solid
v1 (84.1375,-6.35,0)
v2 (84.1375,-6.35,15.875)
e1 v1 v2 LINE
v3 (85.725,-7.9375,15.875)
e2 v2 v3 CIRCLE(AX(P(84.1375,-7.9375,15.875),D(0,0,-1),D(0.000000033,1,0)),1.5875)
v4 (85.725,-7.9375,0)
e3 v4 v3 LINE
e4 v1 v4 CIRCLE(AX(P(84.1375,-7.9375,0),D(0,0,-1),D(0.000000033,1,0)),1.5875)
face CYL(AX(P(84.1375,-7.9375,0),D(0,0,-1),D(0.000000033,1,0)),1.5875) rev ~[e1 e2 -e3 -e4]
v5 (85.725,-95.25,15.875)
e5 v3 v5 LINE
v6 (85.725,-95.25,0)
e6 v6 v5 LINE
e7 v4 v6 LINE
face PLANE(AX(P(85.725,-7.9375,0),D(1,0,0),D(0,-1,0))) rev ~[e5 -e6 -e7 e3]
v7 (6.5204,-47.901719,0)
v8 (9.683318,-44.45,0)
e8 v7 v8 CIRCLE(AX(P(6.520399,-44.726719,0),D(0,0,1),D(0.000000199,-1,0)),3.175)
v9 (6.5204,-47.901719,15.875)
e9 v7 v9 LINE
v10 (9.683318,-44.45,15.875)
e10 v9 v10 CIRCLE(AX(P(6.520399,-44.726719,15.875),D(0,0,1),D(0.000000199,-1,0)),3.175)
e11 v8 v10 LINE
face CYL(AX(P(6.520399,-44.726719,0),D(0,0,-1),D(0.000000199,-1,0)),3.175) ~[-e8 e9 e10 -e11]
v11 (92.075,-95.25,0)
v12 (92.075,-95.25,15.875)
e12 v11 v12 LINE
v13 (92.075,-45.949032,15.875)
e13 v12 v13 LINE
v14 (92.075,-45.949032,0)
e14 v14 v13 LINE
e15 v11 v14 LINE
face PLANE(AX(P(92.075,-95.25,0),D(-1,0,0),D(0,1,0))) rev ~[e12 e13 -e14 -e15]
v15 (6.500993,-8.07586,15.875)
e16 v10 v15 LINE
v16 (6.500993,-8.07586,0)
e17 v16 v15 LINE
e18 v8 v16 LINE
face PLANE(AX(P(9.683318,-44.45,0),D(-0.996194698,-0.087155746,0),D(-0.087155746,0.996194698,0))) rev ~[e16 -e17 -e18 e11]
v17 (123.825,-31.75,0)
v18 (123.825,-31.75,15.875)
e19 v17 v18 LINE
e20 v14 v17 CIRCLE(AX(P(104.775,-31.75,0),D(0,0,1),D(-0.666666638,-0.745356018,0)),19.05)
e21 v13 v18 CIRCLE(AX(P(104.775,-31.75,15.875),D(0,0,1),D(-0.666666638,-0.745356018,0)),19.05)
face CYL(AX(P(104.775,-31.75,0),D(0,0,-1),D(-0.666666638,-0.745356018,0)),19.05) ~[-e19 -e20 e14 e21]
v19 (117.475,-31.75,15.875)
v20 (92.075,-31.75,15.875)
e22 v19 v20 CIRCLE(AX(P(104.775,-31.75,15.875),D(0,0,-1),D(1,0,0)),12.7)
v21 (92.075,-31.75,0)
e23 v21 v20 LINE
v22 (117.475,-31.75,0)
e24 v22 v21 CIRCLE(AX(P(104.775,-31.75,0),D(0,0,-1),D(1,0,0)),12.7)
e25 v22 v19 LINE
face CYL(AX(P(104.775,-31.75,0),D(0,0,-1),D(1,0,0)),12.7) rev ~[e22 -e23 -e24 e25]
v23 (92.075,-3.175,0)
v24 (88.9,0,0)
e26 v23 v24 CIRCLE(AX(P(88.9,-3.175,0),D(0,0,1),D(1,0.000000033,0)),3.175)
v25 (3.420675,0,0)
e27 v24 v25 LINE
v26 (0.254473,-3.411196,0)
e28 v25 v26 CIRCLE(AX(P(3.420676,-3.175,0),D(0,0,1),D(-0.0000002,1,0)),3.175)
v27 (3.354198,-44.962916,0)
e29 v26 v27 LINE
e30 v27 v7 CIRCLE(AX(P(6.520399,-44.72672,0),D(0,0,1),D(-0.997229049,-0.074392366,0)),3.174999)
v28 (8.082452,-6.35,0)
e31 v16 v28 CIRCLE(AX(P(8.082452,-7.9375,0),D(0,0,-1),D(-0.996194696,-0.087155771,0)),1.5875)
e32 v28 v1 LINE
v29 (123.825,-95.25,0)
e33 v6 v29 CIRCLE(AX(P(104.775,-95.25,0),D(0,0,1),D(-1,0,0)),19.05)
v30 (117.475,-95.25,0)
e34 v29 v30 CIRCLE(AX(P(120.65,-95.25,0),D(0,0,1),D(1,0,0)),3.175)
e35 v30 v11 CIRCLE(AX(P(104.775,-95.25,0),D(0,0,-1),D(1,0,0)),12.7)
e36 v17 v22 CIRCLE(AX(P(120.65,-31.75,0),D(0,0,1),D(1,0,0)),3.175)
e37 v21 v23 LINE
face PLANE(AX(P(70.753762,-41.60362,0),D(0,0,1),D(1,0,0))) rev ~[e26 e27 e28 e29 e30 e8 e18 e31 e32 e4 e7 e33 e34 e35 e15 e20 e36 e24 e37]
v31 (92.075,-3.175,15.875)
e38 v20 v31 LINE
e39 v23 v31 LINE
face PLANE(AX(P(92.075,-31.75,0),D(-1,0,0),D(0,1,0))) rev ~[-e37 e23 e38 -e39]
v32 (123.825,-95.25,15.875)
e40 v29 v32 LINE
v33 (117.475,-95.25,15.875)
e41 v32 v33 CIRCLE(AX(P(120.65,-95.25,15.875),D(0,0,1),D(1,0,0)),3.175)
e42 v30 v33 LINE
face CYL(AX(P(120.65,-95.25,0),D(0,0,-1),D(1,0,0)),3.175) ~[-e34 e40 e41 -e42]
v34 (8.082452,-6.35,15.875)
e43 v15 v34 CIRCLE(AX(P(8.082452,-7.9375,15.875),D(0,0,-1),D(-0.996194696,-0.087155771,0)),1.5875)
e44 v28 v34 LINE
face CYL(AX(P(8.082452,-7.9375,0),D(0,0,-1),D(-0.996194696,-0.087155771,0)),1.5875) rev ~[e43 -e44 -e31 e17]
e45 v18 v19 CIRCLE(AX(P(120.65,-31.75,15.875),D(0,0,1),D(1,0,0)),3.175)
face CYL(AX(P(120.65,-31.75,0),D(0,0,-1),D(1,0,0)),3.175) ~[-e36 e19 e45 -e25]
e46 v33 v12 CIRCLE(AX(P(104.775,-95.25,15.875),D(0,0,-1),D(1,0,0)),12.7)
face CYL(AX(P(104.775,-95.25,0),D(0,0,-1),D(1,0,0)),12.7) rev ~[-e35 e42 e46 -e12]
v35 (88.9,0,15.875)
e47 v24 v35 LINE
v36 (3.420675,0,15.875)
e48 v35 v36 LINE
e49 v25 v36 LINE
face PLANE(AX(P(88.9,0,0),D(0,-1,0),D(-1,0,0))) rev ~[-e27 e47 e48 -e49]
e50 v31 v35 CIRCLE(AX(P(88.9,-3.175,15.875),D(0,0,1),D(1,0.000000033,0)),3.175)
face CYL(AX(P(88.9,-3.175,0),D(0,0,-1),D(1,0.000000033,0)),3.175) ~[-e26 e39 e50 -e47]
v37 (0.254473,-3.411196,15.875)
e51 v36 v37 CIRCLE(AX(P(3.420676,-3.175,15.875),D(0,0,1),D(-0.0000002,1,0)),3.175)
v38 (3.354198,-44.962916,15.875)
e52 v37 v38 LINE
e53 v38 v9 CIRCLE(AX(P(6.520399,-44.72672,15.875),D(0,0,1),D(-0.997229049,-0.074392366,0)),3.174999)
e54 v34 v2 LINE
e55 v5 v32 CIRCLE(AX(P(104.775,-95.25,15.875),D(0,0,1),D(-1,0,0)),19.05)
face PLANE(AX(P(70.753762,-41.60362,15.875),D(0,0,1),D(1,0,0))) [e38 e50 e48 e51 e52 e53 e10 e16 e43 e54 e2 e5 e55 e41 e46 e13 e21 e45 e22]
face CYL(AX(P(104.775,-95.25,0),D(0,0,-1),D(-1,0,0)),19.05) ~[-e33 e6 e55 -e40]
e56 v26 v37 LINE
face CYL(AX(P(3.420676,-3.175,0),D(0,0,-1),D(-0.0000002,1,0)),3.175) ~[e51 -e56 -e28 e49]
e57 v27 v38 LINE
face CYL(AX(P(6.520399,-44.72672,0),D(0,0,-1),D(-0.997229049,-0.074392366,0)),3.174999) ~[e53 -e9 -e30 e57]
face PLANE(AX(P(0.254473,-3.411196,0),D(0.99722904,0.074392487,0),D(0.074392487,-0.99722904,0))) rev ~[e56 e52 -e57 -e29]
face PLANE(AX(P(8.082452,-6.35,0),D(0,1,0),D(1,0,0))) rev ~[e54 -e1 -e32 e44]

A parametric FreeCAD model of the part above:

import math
import FreeCAD as App
import Part
import Sketcher
from FreeCAD import Vector
Q = App.Units.Quantity

doc = App.newDocument("Part")
body = doc.addObject("PartDesign::Body", "Body")

sketch1 = body.newObject("Sketcher::SketchObject", "Sketch")
sketch1.AttachmentSupport = (doc.getObject("XY_Plane"), [""])
sketch1.MapMode = "FlatFace"
sketch1.addGeometry(Part.LineSegment(Vector(88.9, 0, 0), Vector(3.420675, 0, 0)), False)
sketch1.addGeometry(Part.ArcOfCircle(Part.Circle(Vector(3.420676, -3.175, 0), Vector(0, 0, 1), 3.175), math.radians(90.000011), math.radians(184.266307)), False)
sketch1.addGeometry(Part.LineSegment(Vector(0.254473, -3.411196, 0), Vector(3.354198, -44.962916, 0)), False)
sketch1.addGeometry(Part.ArcOfCircle(Part.Circle(Vector(6.520399, -44.72672, 0), Vector(0, 0, 1), 3.174999), math.radians(-175.73369), math.radians(-89.99998)), False)
sketch1.addGeometry(Part.ArcOfCircle(Part.Circle(Vector(6.520399, -44.726719, 0), Vector(0, 0, 1), 3.175), math.radians(-89.999989), math.radians(4.999984)), False)
sketch1.addGeometry(Part.LineSegment(Vector(9.683318, -44.45, 0), Vector(6.500993, -8.07586, 0)), False)
sketch1.addGeometry(Part.ArcOfCircle(Part.Circle(Vector(8.082452, -7.9375, 0), Vector(0, 0, 1), 1.5875), math.radians(90.00001), math.radians(185.000002)), False)
sketch1.addGeometry(Part.LineSegment(Vector(8.082452, -6.35, 0), Vector(84.1375, -6.35, 0)), False)
sketch1.addGeometry(Part.ArcOfCircle(Part.Circle(Vector(84.1375, -7.9375, 0), Vector(0, 0, 1), 1.5875), math.radians(0.000002), math.radians(89.999998)), False)
sketch1.addGeometry(Part.LineSegment(Vector(85.725, -7.9375, 0), Vector(85.725, -95.25, 0)), False)
sketch1.addGeometry(Part.ArcOfCircle(Part.Circle(Vector(104.775, -95.25, 0), Vector(0, 0, 1), 19.05), math.radians(180), math.radians(360)), False)
sketch1.addGeometry(Part.ArcOfCircle(Part.Circle(Vector(120.65, -95.25, 0), Vector(0, 0, 1), 3.175), math.radians(0), math.radians(180)), False)
sketch1.addGeometry(Part.ArcOfCircle(Part.Circle(Vector(104.775, -95.25, 0), Vector(0, 0, 1), 12.7), math.radians(180), math.radians(360)), False)
sketch1.addGeometry(Part.LineSegment(Vector(92.075, -95.25, 0), Vector(92.075, -45.949032, 0)), False)
sketch1.addGeometry(Part.ArcOfCircle(Part.Circle(Vector(104.775, -31.75, 0), Vector(0, 0, 1), 19.05), math.radians(-131.810313), math.radians(-0.000001)), False)
sketch1.addGeometry(Part.ArcOfCircle(Part.Circle(Vector(120.65, -31.75, 0), Vector(0, 0, 1), 3.175), math.radians(0), math.radians(180)), False)
sketch1.addGeometry(Part.ArcOfCircle(Part.Circle(Vector(104.775, -31.75, 0), Vector(0, 0, 1), 12.7), math.radians(180), math.radians(360)), False)
sketch1.addGeometry(Part.LineSegment(Vector(92.075, -31.75, 0), Vector(92.075, -3.175, 0)), False)
sketch1.addGeometry(Part.ArcOfCircle(Part.Circle(Vector(88.9, -3.175, 0), Vector(0, 0, 1), 3.175), math.radians(0.000002), math.radians(89.999998)), False)
sketch1.addConstraint(Sketcher.Constraint("Coincident", 0, 2, 1, 1))
sketch1.addConstraint(Sketcher.Constraint("Coincident", 1, 2, 2, 1))
sketch1.addConstraint(Sketcher.Constraint("Coincident", 2, 2, 3, 1))
sketch1.addConstraint(Sketcher.Constraint("Coincident", 3, 2, 4, 1))
sketch1.addConstraint(Sketcher.Constraint("Coincident", 4, 2, 5, 1))
sketch1.addConstraint(Sketcher.Constraint("Coincident", 5, 2, 6, 2))
sketch1.addConstraint(Sketcher.Constraint("Coincident", 6, 1, 7, 1))
sketch1.addConstraint(Sketcher.Constraint("Coincident", 7, 2, 8, 2))
sketch1.addConstraint(Sketcher.Constraint("Coincident", 8, 1, 9, 1))
sketch1.addConstraint(Sketcher.Constraint("Coincident", 9, 2, 10, 1))
sketch1.addConstraint(Sketcher.Constraint("Coincident", 10, 2, 11, 1))
sketch1.addConstraint(Sketcher.Constraint("Coincident", 11, 2, 12, 2))
sketch1.addConstraint(Sketcher.Constraint("Coincident", 12, 1, 13, 1))
sketch1.addConstraint(Sketcher.Constraint("Coincident", 13, 2, 14, 1))
sketch1.addConstraint(Sketcher.Constraint("Coincident", 14, 2, 15, 1))
sketch1.addConstraint(Sketcher.Constraint("Coincident", 15, 2, 16, 2))
sketch1.addConstraint(Sketcher.Constraint("Coincident", 16, 1, 17, 1))
sketch1.addConstraint(Sketcher.Constraint("Coincident", 17, 2, 18, 1))
sketch1.addConstraint(Sketcher.Constraint("Coincident", 18, 2, 0, 1))
sketch1.addConstraint(Sketcher.Constraint("Horizontal", 0))
sketch1.addConstraint(Sketcher.Constraint("Horizontal", 7))
sketch1.addConstraint(Sketcher.Constraint("Vertical", 9))
sketch1.addConstraint(Sketcher.Constraint("Vertical", 13))
sketch1.addConstraint(Sketcher.Constraint("Vertical", 17))
sketch1.addConstraint(Sketcher.Constraint("Coincident", 4, 3, 3, 3))
sketch1.addConstraint(Sketcher.Constraint("Coincident", 12, 3, 10, 3))
sketch1.addConstraint(Sketcher.Constraint("Coincident", 16, 3, 14, 3))
sketch1.addConstraint(Sketcher.Constraint("PointOnObject", 0, 2, -1))
sketch1.addConstraint(Sketcher.Constraint("Radius", 12, Q("0.5 in")))
sketch1.addConstraint(Sketcher.Constraint("Radius", 16, Q("0.5 in")))
sketch1.addConstraint(Sketcher.Constraint("Radius", 10, Q("0.75 in")))
sketch1.addConstraint(Sketcher.Constraint("Radius", 14, Q("0.75 in")))
sketch1.addConstraint(Sketcher.Constraint("Radius", 1, Q("0.125 in")))
sketch1.addConstraint(Sketcher.Constraint("Radius", 3, Q("0.1249999 in")))
sketch1.addConstraint(Sketcher.Constraint("Radius", 6, Q("0.0625 in")))
sketch1.addConstraint(Sketcher.Constraint("Radius", 8, Q("0.0625 in")))
sketch1.addConstraint(Sketcher.Constraint("Radius", 18, Q("0.125 in")))
sketch1.addConstraint(Sketcher.Constraint("DistanceY", 14, 3, 7, 2, Q("1 in")))
sketch1.addConstraint(Sketcher.Constraint("DistanceY", 15, 3, 7, 2, Q("1 in")))
sketch1.addConstraint(Sketcher.Constraint("DistanceX", 13, 2, 15, 2, Q("1 in")))
sketch1.addConstraint(Sketcher.Constraint("DistanceX", -1, 1, 18, 3, Q("3.5 in")))
sketch1.addConstraint(Sketcher.Constraint("DistanceX", -1, 1, 18, 2, Q("3.5 in")))
sketch1.addConstraint(Sketcher.Constraint("DistanceY", 10, 3, 14, 3, Q("2.5 in")))
sketch1.addConstraint(Sketcher.Constraint("DistanceY", 11, 3, 14, 3, Q("2.5 in")))
sketch1.addConstraint(Sketcher.Constraint("DistanceY", 9, 2, 16, 3, Q("2.5 in")))
sketch1.addConstraint(Sketcher.Constraint("DistanceY", 10, 2, 15, 3, Q("2.5 in")))
sketch1.addConstraint(Sketcher.Constraint("DistanceY", 9, 2, 9, 1, Q("3.4375 in")))
sketch1.addConstraint(Sketcher.Constraint("DistanceY", 17, 1, 17, 2, Q("1.125 in")))
sketch1.addConstraint(Sketcher.Constraint("DistanceY", 10, 3, -1, 1, Q("3.75 in")))
sketch1.addConstraint(Sketcher.Constraint("DistanceY", 4, 2, -1, 1, Q("1.75 in")))
sketch1.addConstraint(Sketcher.Constraint("DistanceY", 11, 2, -1, 1, Q("3.75 in")))
sketch1.addConstraint(Sketcher.Constraint("DistanceY", 12, 1, -1, 1, Q("3.75 in")))
sketch1.addConstraint(Sketcher.Constraint("DistanceY", 14, 2, -1, 1, Q("1.25 in")))
sketch1.addConstraint(Sketcher.Constraint("DistanceY", 15, 2, -1, 1, Q("1.25 in")))
sketch1.addConstraint(Sketcher.Constraint("DistanceY", 16, 1, -1, 1, Q("1.25 in")))
sketch1.addConstraint(Sketcher.Constraint("DistanceX", -1, 1, 7, 2, Q("3.3125 in")))
sketch1.addConstraint(Sketcher.Constraint("DistanceX", 7, 1, 7, 2, 76.055048))
sketch1.addConstraint(Sketcher.Constraint("DistanceX", -1, 1, 3, 3, 6.520399))
sketch1.addConstraint(Sketcher.Constraint("DistanceX", -1, 1, 3, 2, 6.5204))
sketch1.addConstraint(Sketcher.Constraint("DistanceX", 1, 2, 0, 2, 3.166202))
sketch1.addConstraint(Sketcher.Constraint("DistanceX", 2, 2, 3, 3, 3.166201))
sketch1.addConstraint(Sketcher.Constraint("Distance", 2, 41.667178))
sketch1.addConstraint(Sketcher.Constraint("DistanceX", 0, 2, 0, 1, 85.479325))
sketch1.addConstraint(Sketcher.Constraint("DistanceY", 3, 3, -1, 1, 44.72672))
sketch1.addConstraint(Sketcher.Constraint("DistanceY", 5, 2, -1, 1, 8.07586))
sketch1.addConstraint(Sketcher.Constraint("DistanceX", 1, 2, 6, 3, 7.827979))
pad1 = body.newObject("PartDesign::Pad", "Pad")
pad1.Profile = sketch1
pad1.Length = Q("0.625 in")

doc.recompute()
